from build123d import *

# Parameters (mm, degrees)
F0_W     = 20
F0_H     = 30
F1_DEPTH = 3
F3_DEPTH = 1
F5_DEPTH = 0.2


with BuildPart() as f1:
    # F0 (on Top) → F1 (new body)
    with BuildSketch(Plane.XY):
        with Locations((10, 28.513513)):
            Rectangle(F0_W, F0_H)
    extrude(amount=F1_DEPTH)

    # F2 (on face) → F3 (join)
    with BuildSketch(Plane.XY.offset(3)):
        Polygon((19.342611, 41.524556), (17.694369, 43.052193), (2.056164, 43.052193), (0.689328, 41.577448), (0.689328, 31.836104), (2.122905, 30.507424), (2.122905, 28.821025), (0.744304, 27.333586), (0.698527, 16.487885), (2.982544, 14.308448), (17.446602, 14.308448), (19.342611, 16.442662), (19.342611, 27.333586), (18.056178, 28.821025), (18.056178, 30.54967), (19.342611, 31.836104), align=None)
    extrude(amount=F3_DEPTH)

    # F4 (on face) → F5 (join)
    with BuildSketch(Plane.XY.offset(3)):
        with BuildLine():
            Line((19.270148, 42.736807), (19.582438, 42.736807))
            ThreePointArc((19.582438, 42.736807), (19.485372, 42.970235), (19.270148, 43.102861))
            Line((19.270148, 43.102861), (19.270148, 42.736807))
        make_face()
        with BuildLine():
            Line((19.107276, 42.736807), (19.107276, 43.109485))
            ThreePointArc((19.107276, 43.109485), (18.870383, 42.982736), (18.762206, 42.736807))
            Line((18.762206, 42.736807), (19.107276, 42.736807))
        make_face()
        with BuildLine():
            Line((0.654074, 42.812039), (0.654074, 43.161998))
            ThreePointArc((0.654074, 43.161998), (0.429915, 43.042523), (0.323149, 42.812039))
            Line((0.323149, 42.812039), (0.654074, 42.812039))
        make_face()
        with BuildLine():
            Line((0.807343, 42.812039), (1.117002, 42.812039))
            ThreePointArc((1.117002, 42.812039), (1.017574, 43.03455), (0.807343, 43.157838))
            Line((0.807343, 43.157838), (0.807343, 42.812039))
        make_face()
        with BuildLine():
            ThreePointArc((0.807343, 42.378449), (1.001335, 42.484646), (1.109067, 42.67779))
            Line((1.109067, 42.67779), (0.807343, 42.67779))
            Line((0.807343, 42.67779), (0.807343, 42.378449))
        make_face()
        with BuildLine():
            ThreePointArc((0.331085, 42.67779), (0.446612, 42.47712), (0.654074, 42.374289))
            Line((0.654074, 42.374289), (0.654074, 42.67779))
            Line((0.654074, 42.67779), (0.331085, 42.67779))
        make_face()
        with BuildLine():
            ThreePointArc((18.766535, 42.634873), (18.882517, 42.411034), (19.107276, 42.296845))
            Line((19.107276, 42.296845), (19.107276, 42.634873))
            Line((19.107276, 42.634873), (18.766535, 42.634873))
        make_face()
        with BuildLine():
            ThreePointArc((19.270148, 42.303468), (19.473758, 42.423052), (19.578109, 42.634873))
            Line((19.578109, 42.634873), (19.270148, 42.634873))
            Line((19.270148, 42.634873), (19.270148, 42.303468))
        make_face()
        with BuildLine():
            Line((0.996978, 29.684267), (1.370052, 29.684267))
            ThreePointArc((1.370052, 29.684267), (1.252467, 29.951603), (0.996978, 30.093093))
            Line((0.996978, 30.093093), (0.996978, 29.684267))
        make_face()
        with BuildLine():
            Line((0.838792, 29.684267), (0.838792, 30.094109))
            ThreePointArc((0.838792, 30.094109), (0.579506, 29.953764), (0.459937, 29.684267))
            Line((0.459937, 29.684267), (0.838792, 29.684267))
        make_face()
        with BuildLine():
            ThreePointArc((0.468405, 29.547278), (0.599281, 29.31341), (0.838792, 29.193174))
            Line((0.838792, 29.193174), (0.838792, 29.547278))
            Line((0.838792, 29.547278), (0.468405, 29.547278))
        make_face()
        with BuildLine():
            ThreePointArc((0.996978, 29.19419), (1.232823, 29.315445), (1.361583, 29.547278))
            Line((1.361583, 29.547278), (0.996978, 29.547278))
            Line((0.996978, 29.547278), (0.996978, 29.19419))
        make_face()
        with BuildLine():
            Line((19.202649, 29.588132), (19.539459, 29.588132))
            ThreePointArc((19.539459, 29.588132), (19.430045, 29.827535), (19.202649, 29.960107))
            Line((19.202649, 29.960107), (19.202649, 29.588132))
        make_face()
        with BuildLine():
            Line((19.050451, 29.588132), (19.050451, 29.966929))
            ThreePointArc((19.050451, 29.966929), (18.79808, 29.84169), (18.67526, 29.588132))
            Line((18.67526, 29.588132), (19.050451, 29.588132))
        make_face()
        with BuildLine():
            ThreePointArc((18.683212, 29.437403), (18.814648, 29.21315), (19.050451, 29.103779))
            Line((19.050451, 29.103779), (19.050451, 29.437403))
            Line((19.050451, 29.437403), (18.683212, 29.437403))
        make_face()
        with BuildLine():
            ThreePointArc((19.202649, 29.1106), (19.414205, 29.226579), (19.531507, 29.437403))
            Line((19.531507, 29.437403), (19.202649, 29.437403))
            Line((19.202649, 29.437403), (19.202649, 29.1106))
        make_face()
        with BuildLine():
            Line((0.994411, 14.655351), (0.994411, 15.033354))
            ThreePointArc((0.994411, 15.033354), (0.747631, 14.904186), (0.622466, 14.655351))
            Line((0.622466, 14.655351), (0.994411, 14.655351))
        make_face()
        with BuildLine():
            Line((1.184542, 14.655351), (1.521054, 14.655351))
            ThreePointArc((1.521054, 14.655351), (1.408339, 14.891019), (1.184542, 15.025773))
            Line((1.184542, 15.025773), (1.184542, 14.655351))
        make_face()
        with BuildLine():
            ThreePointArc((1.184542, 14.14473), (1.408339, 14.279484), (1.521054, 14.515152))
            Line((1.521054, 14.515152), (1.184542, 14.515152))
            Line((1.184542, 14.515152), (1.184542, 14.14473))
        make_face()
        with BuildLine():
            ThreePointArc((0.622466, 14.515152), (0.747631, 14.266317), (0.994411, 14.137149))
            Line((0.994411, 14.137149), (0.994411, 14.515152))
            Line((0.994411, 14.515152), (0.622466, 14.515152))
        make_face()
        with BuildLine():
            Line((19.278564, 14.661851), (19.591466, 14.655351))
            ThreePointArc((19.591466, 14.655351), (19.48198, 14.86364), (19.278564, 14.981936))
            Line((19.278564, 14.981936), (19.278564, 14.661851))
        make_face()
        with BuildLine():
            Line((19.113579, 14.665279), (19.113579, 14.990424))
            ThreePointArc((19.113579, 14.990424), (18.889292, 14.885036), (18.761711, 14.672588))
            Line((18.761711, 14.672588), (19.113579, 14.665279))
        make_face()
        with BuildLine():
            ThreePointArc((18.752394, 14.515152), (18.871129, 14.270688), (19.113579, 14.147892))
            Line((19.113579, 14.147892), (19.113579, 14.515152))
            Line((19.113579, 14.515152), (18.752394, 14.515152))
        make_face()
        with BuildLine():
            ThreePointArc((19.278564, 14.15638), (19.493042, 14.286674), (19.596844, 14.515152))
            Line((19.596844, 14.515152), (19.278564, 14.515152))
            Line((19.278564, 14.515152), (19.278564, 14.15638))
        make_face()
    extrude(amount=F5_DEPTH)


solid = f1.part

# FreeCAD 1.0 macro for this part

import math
import FreeCAD as App
import Part
import Sketcher
Q = App.Units.Quantity


def add_polygon(sketch, points):
    """Adds a closed chain of lines whose ends are joined by coincident constraints."""
    first, n = sketch.GeometryCount, len(points)
    for a, b in zip(points, points[1:] + points[:1]):
        sketch.addGeometry(Part.LineSegment(App.Vector(*a, 0), App.Vector(*b, 0)), False)
    for i in range(n):
        sketch.addConstraint(Sketcher.Constraint("Coincident", first + i, 2, first + (i + 1) % n, 1))

doc = App.newDocument("Part")
params = doc.addObject("Spreadsheet::Sheet", "Params")
for row, (alias, value) in enumerate([
    ("sketch1_width", "20 mm"),
    ("sketch1_height", "30 mm"),
    ("pad1_length", "3 mm"),
    ("pad2_length", "1 mm"),
    ("pad3_length", "0.2 mm"),
], start=1):
    params.set(f"A{row}", alias)
    params.set(f"B{row}", "=" + value)
    params.setAlias(f"B{row}", alias)

body = doc.addObject("PartDesign::Body", "Body")

# Sketch on XY plane
sketch1 = doc.addObject("Sketcher::SketchObject", "Sketch")
body.addObject(sketch1)
sketch1.AttachmentSupport = (doc.XY_Plane, [""])
sketch1.MapMode = "FlatFace"
add_polygon(sketch1, [(0, 44), (0, 14), (20, 14), (20, 44)])  # lines 0-3
sketch1.addConstraint([
    Sketcher.Constraint("Vertical", 0),
    Sketcher.Constraint("Horizontal", 1),
    Sketcher.Constraint("Vertical", 2),
    Sketcher.Constraint("Horizontal", 3),
    Sketcher.Constraint("PointOnObject", 0, 2, -2),
    Sketcher.Constraint("DistanceX", 1, 1, 1, 2, Q("20 mm")),
    Sketcher.Constraint("DistanceY", 0, 2, 0, 1, Q("30 mm")),
    Sketcher.Constraint("DistanceY", -1, 1, 0, 2, Q("13.513513 mm")),
])
sketch1.setExpression("Constraints[9]", "Params.sketch1_width")
sketch1.setExpression("Constraints[10]", "Params.sketch1_height")
pad1 = doc.addObject("PartDesign::Pad", "Pad")
body.addObject(pad1)
pad1.Profile = sketch1
pad1.setExpression("Length", "Params.pad1_length")

# Sketch on XY plane
sketch2 = doc.addObject("Sketcher::SketchObject", "Sketch001")
body.addObject(sketch2)
sketch2.AttachmentSupport = (doc.XY_Plane, [""])
sketch2.MapMode = "FlatFace"
sketch2.AttachmentOffset = App.Placement(App.Vector(0, 0, 3), App.Rotation())
add_polygon(sketch2, [(19.3, 41.5), (17.7, 43.1), (2.1, 43.1), (0.7, 41.6), (0.7, 31.8), (2.1, 30.5), (2.1, 28.8), (0.7, 27.3), (0.7, 16.5), (3, 14.3), (17.4, 14.3), (19.3, 16.4), (19.3, 27.3), (18.1, 28.8), (18.1, 30.5), (19.3, 31.8)])  # lines 0-15
sketch2.addConstraint([
    Sketcher.Constraint("Horizontal", 1),
    Sketcher.Constraint("Vertical", 3),
    Sketcher.Constraint("Vertical", 5),
    Sketcher.Constraint("Horizontal", 9),
    Sketcher.Constraint("Vertical", 11),
    Sketcher.Constraint("Vertical", 13),
    Sketcher.Constraint("Vertical", 15),
    Sketcher.Constraint("Perpendicular", 0, 2),
    Sketcher.Constraint("Perpendicular", 2, 4),
    Sketcher.Constraint("Perpendicular", 4, 6),
    Sketcher.Constraint("Horizontal", 6, 2, 11, 2),
    Sketcher.Constraint("Horizontal", 5, 2, 12, 2),
    Sketcher.Constraint("Horizontal", 3, 2, 14, 2),
    Sketcher.Constraint("Vertical", 11, 2, 14, 2),
    Sketcher.Constraint("DistanceY", 5, 2, 5, 1, Q("1.686399 mm")),
    Sketcher.Constraint("DistanceY", 15, 1, 15, 2, Q("9.688452 mm")),
    Sketcher.Constraint("DistanceX", -1, 1, 9, 2, Q("17.446602 mm")),
    Sketcher.Constraint("DistanceX", 6, 2, 5, 2, Q("1.378601 mm")),
    Sketcher.Constraint("DistanceY", 7, 2, 6, 2, Q("10.845701 mm")),
    Sketcher.Constraint("DistanceX", 3, 2, 7, 2, Q("0.009199 mm")),
    Sketcher.Constraint("Distance", 2, Q("2.010749 mm")),
    Sketcher.Constraint("Distance", 4, Q("1.954619 mm")),
    Sketcher.Constraint("Distance", 10, Q("2.854771 mm")),
    Sketcher.Constraint("Distance", 14, Q("1.819292 mm")),
    Sketcher.Constraint("DistanceX", 1, 2, 1, 1, Q("15.638205 mm")),
    Sketcher.Constraint("DistanceX", 9, 1, 9, 2, Q("14.464058 mm")),
    Sketcher.Constraint("DistanceY", 3, 2, 3, 1, Q("9.741344 mm")),
    Sketcher.Constraint("DistanceY", 11, 1, 11, 2, Q("10.890924 mm")),
    Sketcher.Constraint("DistanceY", 13, 1, 13, 2, Q("1.728645 mm")),
    Sketcher.Constraint("DistanceX", -1, 1, 0, 2, Q("17.694369 mm")),
    Sketcher.Constraint("DistanceX", -1, 1, 2, 2, Q("0.689328 mm")),
    Sketcher.Constraint("DistanceY", -1, 1, 10, 2, Q("16.442662 mm")),
])
pad2 = doc.addObject("PartDesign::Pad", "Pad001")
body.addObject(pad2)
pad2.Profile = sketch2
pad2.setExpression("Length", "Params.pad2_length")

# Sketch on XY plane
sketch3 = doc.addObject("Sketcher::SketchObject", "Sketch002")
body.addObject(sketch3)
sketch3.AttachmentSupport = (doc.XY_Plane, [""])
sketch3.MapMode = "FlatFace"
sketch3.AttachmentOffset = App.Placement(App.Vector(0, 0, 3), App.Rotation())
sketch3.addGeometry([
    Part.LineSegment(App.Vector(19.270148, 42.736807, 0), App.Vector(19.582438, 42.736807, 0)),  # 0
    Part.ArcOfCircle(Part.Circle(App.Vector(19.172321, 42.703164, 0), App.Vector(0, 0, 1), 0.411494), math.radians(4.689605), math.radians(76.247075)),  # 1
    Part.LineSegment(App.Vector(19.270148, 43.102861, 0), App.Vector(19.270148, 42.736807, 0)),  # 2
    Part.LineSegment(App.Vector(19.107276, 42.736807, 0), App.Vector(19.107276, 43.109485, 0)),  # 3
    Part.ArcOfCircle(Part.Circle(App.Vector(19.172321, 42.703166, 0), App.Vector(0, 0, 1), 0.411493), math.radians(99.094973), math.radians(175.310591)),  # 4
    Part.LineSegment(App.Vector(18.762206, 42.736807, 0), App.Vector(19.107276, 42.736807, 0)),  # 5
    Part.LineSegment(App.Vector(0.654074, 42.812039, 0), App.Vector(0.654074, 43.161998, 0)),  # 6
    Part.ArcOfCircle(Part.Circle(App.Vector(0.720077, 42.768142, 0), App.Vector(0, 0, 1), 0.399348), math.radians(99.513307), math.radians(173.689248)),  # 7
    Part.LineSegment(App.Vector(0.323149, 42.812039, 0), App.Vector(0.654074, 42.812039, 0)),  # 8
    Part.LineSegment(App.Vector(0.807343, 42.812039, 0), App.Vector(1.117002, 42.812039, 0)),  # 9
    Part.ArcOfCircle(Part.Circle(App.Vector(0.720077, 42.768145, 0), App.Vector(0, 0, 1), 0.399344), math.radians(6.310425), math.radians(77.377729)),  # 10
    Part.LineSegment(App.Vector(0.807343, 43.157838, 0), App.Vector(0.807343, 42.812039, 0)),  # 11
    Part.ArcOfCircle(Part.Circle(App.Vector(0.720076, 42.768144, 0), App.Vector(0, 0, 1), 0.399347), math.radians(-77.37761), math.radians(-13.076701)),  # 12
    Part.LineSegment(App.Vector(1.109067, 42.67779, 0), App.Vector(0.807343, 42.67779, 0)),  # 13
    Part.LineSegment(App.Vector(0.807343, 42.67779, 0), App.Vector(0.807343, 42.378449, 0)),  # 14
    Part.ArcOfCircle(Part.Circle(App.Vector(0.720078, 42.768146, 0), App.Vector(0, 0, 1), 0.399349), math.radians(-166.923126), math.radians(-99.513465)),  # 15
    Part.LineSegment(App.Vector(0.654074, 42.374289, 0), App.Vector(0.654074, 42.67779, 0)),  # 16
    Part.LineSegment(App.Vector(0.654074, 42.67779, 0), App.Vector(0.331085, 42.67779, 0)),  # 17
    Part.ArcOfCircle(Part.Circle(App.Vector(19.17232, 42.703162, 0), App.Vector(0, 0, 1), 0.411491), math.radians(-170.447212), math.radians(-99.094775)),  # 18
    Part.LineSegment(App.Vector(19.107276, 42.296845, 0), App.Vector(19.107276, 42.634873, 0)),  # 19
    Part.LineSegment(App.Vector(19.107276, 42.634873, 0), App.Vector(18.766535, 42.634873, 0)),  # 20
    Part.ArcOfCircle(Part.Circle(App.Vector(19.17232, 42.703166, 0), App.Vector(0, 0, 1), 0.411496), math.radians(-76.246929), math.radians(-9.553158)),  # 21
    Part.LineSegment(App.Vector(19.578109, 42.634873, 0), App.Vector(19.270148, 42.634873, 0)),  # 22
    Part.LineSegment(App.Vector(19.270148, 42.634873, 0), App.Vector(19.270148, 42.303468, 0)),  # 23
    Part.LineSegment(App.Vector(0.996978, 29.684267, 0), App.Vector(1.370052, 29.684267, 0)),  # 24
    Part.ArcOfCircle(Part.Circle(App.Vector(0.914995, 29.643642, 0), App.Vector(0, 0, 1), 0.456867), math.radians(5.10152), math.radians(79.662483)),  # 25
    Part.LineSegment(App.Vector(0.996978, 30.093093, 0), App.Vector(0.996978, 29.684267, 0)),  # 26
    Part.LineSegment(App.Vector(0.838792, 29.684267, 0), App.Vector(0.838792, 30.094109, 0)),  # 27
    Part.ArcOfCircle(Part.Circle(App.Vector(0.914992, 29.643644, 0), App.Vector(0, 0, 1), 0.456864), math.radians(99.601149), math.radians(174.898708)),  # 28
    Part.LineSegment(App.Vector(0.459937, 29.684267, 0), App.Vector(0.838792, 29.684267, 0)),  # 29
    Part.ArcOfCircle(Part.Circle(App.Vector(0.914995, 29.643642, 0), App.Vector(0, 0, 1), 0.456868), math.radians(-167.823532), math.radians(-99.601446)),  # 30
    Part.LineSegment(App.Vector(0.838792, 29.193174, 0), App.Vector(0.838792, 29.547278, 0)),  # 31
    Part.LineSegment(App.Vector(0.838792, 29.547278, 0), App.Vector(0.468405, 29.547278, 0)),  # 32
    Part.ArcOfCircle(Part.Circle(App.Vector(0.914995, 29.64364, 0), App.Vector(0, 0, 1), 0.456865), math.radians(-79.662519), math.radians(-12.176202)),  # 33
    Part.LineSegment(App.Vector(1.361583, 29.547278, 0), App.Vector(0.996978, 29.547278, 0)),  # 34
    Part.LineSegment(App.Vector(0.996978, 29.547278, 0), App.Vector(0.996978, 29.19419, 0)),  # 35
    Part.LineSegment(App.Vector(19.202649, 29.588132, 0), App.Vector(19.539459, 29.588132, 0)),  # 36
    Part.ArcOfCircle(Part.Circle(App.Vector(19.107361, 29.535355, 0), App.Vector(0, 0, 1), 0.435309), math.radians(6.963672), math.radians(77.355746)),  # 37
    Part.LineSegment(App.Vector(19.202649, 29.960107, 0), App.Vector(19.202649, 29.588132, 0)),  # 38
    Part.LineSegment(App.Vector(19.050451, 29.588132, 0), App.Vector(19.050451, 29.966929, 0)),  # 39
    Part.ArcOfCircle(Part.Circle(App.Vector(19.107359, 29.535354, 0), App.Vector(0, 0, 1), 0.435311), math.radians(97.511813), math.radians(173.036225)),  # 40
    Part.LineSegment(App.Vector(18.67526, 29.588132, 0), App.Vector(19.050451, 29.588132, 0)),  # 41
    Part.ArcOfCircle(Part.Circle(App.Vector(19.10736, 29.535354, 0), App.Vector(0, 0, 1), 0.435311), math.radians(-166.996265), math.radians(-97.511869)),  # 42
    Part.LineSegment(App.Vector(19.050451, 29.103779, 0), App.Vector(19.050451, 29.437403, 0)),  # 43
    Part.LineSegment(App.Vector(19.050451, 29.437403, 0), App.Vector(18.683212, 29.437403, 0)),  # 44
    Part.ArcOfCircle(Part.Circle(App.Vector(19.107361, 29.535352, 0), App.Vector(0, 0, 1), 0.435309), math.radians(-77.355727), math.radians(-13.003429)),  # 45
    Part.LineSegment(App.Vector(19.531507, 29.437403, 0), App.Vector(19.202649, 29.437403, 0)),  # 46
    Part.LineSegment(App.Vector(19.202649, 29.437403, 0), App.Vector(19.202649, 29.1106, 0)),  # 47
    Part.LineSegment(App.Vector(0.994411, 14.655351, 0), App.Vector(0.994411, 15.033354, 0)),  # 48
    Part.ArcOfCircle(Part.Circle(App.Vector(1.07176, 14.585251, 0), App.Vector(0, 0, 1), 0.45473), math.radians(99.793568), math.radians(171.13207)),  # 49
    Part.LineSegment(App.Vector(0.622466, 14.655351, 0), App.Vector(0.994411, 14.655351, 0)),  # 50
    Part.LineSegment(App.Vector(1.184542, 14.655351, 0), App.Vector(1.521054, 14.655351, 0)),  # 51
    Part.ArcOfCircle(Part.Circle(App.Vector(1.071761, 14.585252, 0), App.Vector(0, 0, 1), 0.454729), math.radians(8.867798), math.radians(75.639718)),  # 52
    Part.LineSegment(App.Vector(1.184542, 15.025773, 0), App.Vector(1.184542, 14.655351, 0)),  # 53
    Part.ArcOfCircle(Part.Circle(App.Vector(1.071761, 14.585251, 0), App.Vector(0, 0, 1), 0.454729), math.radians(-75.639718), math.radians(-8.867798)),  # 54
    Part.LineSegment(App.Vector(1.521054, 14.515152, 0), App.Vector(1.184542, 14.515152, 0)),  # 55
    Part.LineSegment(App.Vector(1.184542, 14.515152, 0), App.Vector(1.184542, 14.14473, 0)),  # 56
    Part.ArcOfCircle(Part.Circle(App.Vector(1.07176, 14.585252, 0), App.Vector(0, 0, 1), 0.45473), math.radians(-171.13207), math.radians(-99.793568)),  # 57
    Part.LineSegment(App.Vector(0.994411, 14.137149, 0), App.Vector(0.994411, 14.515152, 0)),  # 58
    Part.LineSegment(App.Vector(0.994411, 14.515152, 0), App.Vector(0.622466, 14.515152, 0)),  # 59
    Part.LineSegment(App.Vector(19.278564, 14.661851, 0), App.Vector(19.591466, 14.655351, 0)),  # 60
    Part.ArcOfCircle(Part.Circle(App.Vector(19.174619, 14.569158, 0), App.Vector(0, 0, 1), 0.425665), math.radians(11.68268), math.radians(75.865797)),  # 61
    Part.LineSegment(App.Vector(19.278564, 14.981936, 0), App.Vector(19.278564, 14.661851, 0)),  # 62
    Part.LineSegment(App.Vector(19.113579, 14.665279, 0), App.Vector(19.113579, 14.990424, 0)),  # 63
    Part.ArcOfCircle(Part.Circle(App.Vector(19.174621, 14.569156, 0), App.Vector(0, 0, 1), 0.425668), math.radians(98.244831), math.radians(165.937034)),  # 64
    Part.LineSegment(App.Vector(18.761711, 14.672588, 0), App.Vector(19.113579, 14.665279, 0)),  # 65
    Part.ArcOfCircle(Part.Circle(App.Vector(19.17462, 14.569159, 0), App.Vector(0, 0, 1), 0.425666), math.radians(-172.710905), math.radians(-98.24473)),  # 66
    Part.LineSegment(App.Vector(19.113579, 14.147892, 0), App.Vector(19.113579, 14.515152, 0)),  # 67
    Part.LineSegment(App.Vector(19.113579, 14.515152, 0), App.Vector(18.752394, 14.515152, 0)),  # 68
    Part.ArcOfCircle(Part.Circle(App.Vector(19.174619, 14.569158, 0), App.Vector(0, 0, 1), 0.425665), math.radians(-75.865793), math.radians(-7.289059)),  # 69
    Part.LineSegment(App.Vector(19.596844, 14.515152, 0), App.Vector(19.278564, 14.515152, 0)),  # 70
    Part.LineSegment(App.Vector(19.278564, 14.515152, 0), App.Vector(19.278564, 14.15638, 0)),  # 71
], False)
sketch3.addConstraint([
    Sketcher.Constraint("Coincident", 0, 2, 1, 1),
    Sketcher.Constraint("Coincident", 1, 2, 2, 1),
    Sketcher.Constraint("Coincident", 2, 2, 0, 1),
    Sketcher.Constraint("Coincident", 3, 2, 4, 1),
    Sketcher.Constraint("Coincident", 4, 2, 5, 1),
    Sketcher.Constraint("Coincident", 5, 2, 3, 1),
    Sketcher.Constraint("Coincident", 6, 2, 7, 1),
    Sketcher.Constraint("Coincident", 7, 2, 8, 1),
    Sketcher.Constraint("Coincident", 8, 2, 6, 1),
    Sketcher.Constraint("Coincident", 9, 2, 10, 1),
    Sketcher.Constraint("Coincident", 10, 2, 11, 1),
    Sketcher.Constraint("Coincident", 11, 2, 9, 1),
    Sketcher.Constraint("Coincident", 12, 2, 13, 1),
    Sketcher.Constraint("Coincident", 13, 2, 14, 1),
    Sketcher.Constraint("Coincident", 14, 2, 12, 1),
    Sketcher.Constraint("Coincident", 15, 2, 16, 1),
    Sketcher.Constraint("Coincident", 16, 2, 17, 1),
    Sketcher.Constraint("Coincident", 17, 2, 15, 1),
    Sketcher.Constraint("Coincident", 18, 2, 19, 1),
    Sketcher.Constraint("Coincident", 19, 2, 20, 1),
    Sketcher.Constraint("Coincident", 20, 2, 18, 1),
    Sketcher.Constraint("Coincident", 21, 2, 22, 1),
    Sketcher.Constraint("Coincident", 22, 2, 23, 1),
    Sketcher.Constraint("Coincident", 23, 2, 21, 1),
    Sketcher.Constraint("Coincident", 24, 2, 25, 1),
    Sketcher.Constraint("Coincident", 25, 2, 26, 1),
    Sketcher.Constraint("Coincident", 26, 2, 24, 1),
    Sketcher.Constraint("Coincident", 27, 2, 28, 1),
    Sketcher.Constraint("Coincident", 28, 2, 29, 1),
    Sketcher.Constraint("Coincident", 29, 2, 27, 1),
    Sketcher.Constraint("Coincident", 30, 2, 31, 1),
    Sketcher.Constraint("Coincident", 31, 2, 32, 1),
    Sketcher.Constraint("Coincident", 32, 2, 30, 1),
    Sketcher.Constraint("Coincident", 33, 2, 34, 1),
    Sketcher.Constraint("Coincident", 34, 2, 35, 1),
    Sketcher.Constraint("Coincident", 35, 2, 33, 1),
    Sketcher.Constraint("Coincident", 36, 2, 37, 1),
    Sketcher.Constraint("Coincident", 37, 2, 38, 1),
    Sketcher.Constraint("Coincident", 38, 2, 36, 1),
    Sketcher.Constraint("Coincident", 39, 2, 40, 1),
    Sketcher.Constraint("Coincident", 40, 2, 41, 1),
    Sketcher.Constraint("Coincident", 41, 2, 39, 1),
    Sketcher.Constraint("Coincident", 42, 2, 43, 1),
    Sketcher.Constraint("Coincident", 43, 2, 44, 1),
    Sketcher.Constraint("Coincident", 44, 2, 42, 1),
    Sketcher.Constraint("Coincident", 45, 2, 46, 1),
    Sketcher.Constraint("Coincident", 46, 2, 47, 1),
    Sketcher.Constraint("Coincident", 47, 2, 45, 1),
    Sketcher.Constraint("Coincident", 48, 2, 49, 1),
    Sketcher.Constraint("Coincident", 49, 2, 50, 1),
    Sketcher.Constraint("Coincident", 50, 2, 48, 1),
    Sketcher.Constraint("Coincident", 51, 2, 52, 1),
    Sketcher.Constraint("Coincident", 52, 2, 53, 1),
    Sketcher.Constraint("Coincident", 53, 2, 51, 1),
    Sketcher.Constraint("Coincident", 54, 2, 55, 1),
    Sketcher.Constraint("Coincident", 55, 2, 56, 1),
    Sketcher.Constraint("Coincident", 56, 2, 54, 1),
    Sketcher.Constraint("Coincident", 57, 2, 58, 1),
    Sketcher.Constraint("Coincident", 58, 2, 59, 1),
    Sketcher.Constraint("Coincident", 59, 2, 57, 1),
    Sketcher.Constraint("Coincident", 60, 2, 61, 1),
    Sketcher.Constraint("Coincident", 61, 2, 62, 1),
    Sketcher.Constraint("Coincident", 62, 2, 60, 1),
    Sketcher.Constraint("Coincident", 63, 2, 64, 1),
    Sketcher.Constraint("Coincident", 64, 2, 65, 1),
    Sketcher.Constraint("Coincident", 65, 2, 63, 1),
    Sketcher.Constraint("Coincident", 66, 2, 67, 1),
    Sketcher.Constraint("Coincident", 67, 2, 68, 1),
    Sketcher.Constraint("Coincident", 68, 2, 66, 1),
    Sketcher.Constraint("Coincident", 69, 2, 70, 1),
    Sketcher.Constraint("Coincident", 70, 2, 71, 1),
    Sketcher.Constraint("Coincident", 71, 2, 69, 1),
    Sketcher.Constraint("Horizontal", 0),
    Sketcher.Constraint("Vertical", 2),
    Sketcher.Constraint("Vertical", 3),
    Sketcher.Constraint("Horizontal", 5),
    Sketcher.Constraint("Vertical", 6),
    Sketcher.Constraint("Horizontal", 8),
    Sketcher.Constraint("Horizontal", 9),
    Sketcher.Constraint("Vertical", 11),
    Sketcher.Constraint("Horizontal", 13),
    Sketcher.Constraint("Vertical", 14),
    Sketcher.Constraint("Vertical", 16),
    Sketcher.Constraint("Horizontal", 17),
    Sketcher.Constraint("Vertical", 19),
    Sketcher.Constraint("Horizontal", 20),
    Sketcher.Constraint("Horizontal", 22),
    Sketcher.Constraint("Vertical", 23),
    Sketcher.Constraint("Horizontal", 24),
    Sketcher.Constraint("Vertical", 26),
    Sketcher.Constraint("Vertical", 27),
    Sketcher.Constraint("Horizontal", 29),
    Sketcher.Constraint("Vertical", 31),
    Sketcher.Constraint("Horizontal", 32),
    Sketcher.Constraint("Horizontal", 34),
    Sketcher.Constraint("Vertical", 35),
    Sketcher.Constraint("Horizontal", 36),
    Sketcher.Constraint("Vertical", 38),
    Sketcher.Constraint("Vertical", 39),
    Sketcher.Constraint("Horizontal", 41),
    Sketcher.Constraint("Vertical", 43),
    Sketcher.Constraint("Horizontal", 44),
    Sketcher.Constraint("Horizontal", 46),
    Sketcher.Constraint("Vertical", 47),
    Sketcher.Constraint("Vertical", 48),
    Sketcher.Constraint("Horizontal", 50),
    Sketcher.Constraint("Horizontal", 51),
    Sketcher.Constraint("Vertical", 53),
    Sketcher.Constraint("Horizontal", 55),
    Sketcher.Constraint("Vertical", 56),
    Sketcher.Constraint("Vertical", 58),
    Sketcher.Constraint("Horizontal", 59),
    Sketcher.Constraint("Vertical", 62),
    Sketcher.Constraint("Vertical", 63),
    Sketcher.Constraint("Vertical", 67),
    Sketcher.Constraint("Horizontal", 68),
    Sketcher.Constraint("Horizontal", 70),
    Sketcher.Constraint("Vertical", 71),
    Sketcher.Constraint("Coincident", 4, 3, 1, 3),
    Sketcher.Constraint("Coincident", 10, 3, 7, 3),
    Sketcher.Constraint("Coincident", 12, 3, 7, 3),
    Sketcher.Constraint("Coincident", 15, 3, 7, 3),
    Sketcher.Constraint("Coincident", 18, 3, 1, 3),
    Sketcher.Constraint("Coincident", 21, 3, 1, 3),
    Sketcher.Constraint("Coincident", 28, 3, 25, 3),
    Sketcher.Constraint("Coincident", 30, 3, 25, 3),
    Sketcher.Constraint("Coincident", 33, 3, 25, 3),
    Sketcher.Constraint("Coincident", 40, 3, 37, 3),
    Sketcher.Constraint("Coincident", 42, 3, 37, 3),
    Sketcher.Constraint("Coincident", 45, 3, 37, 3),
    Sketcher.Constraint("Coincident", 52, 3, 49, 3),
    Sketcher.Constraint("Coincident", 54, 3, 49, 3),
    Sketcher.Constraint("Coincident", 57, 3, 49, 3),
    Sketcher.Constraint("Coincident", 64, 3, 61, 3),
    Sketcher.Constraint("Coincident", 66, 3, 61, 3),
    Sketcher.Constraint("Coincident", 69, 3, 61, 3),
    Sketcher.Constraint("Radius", 15, Q("0.399349 mm")),
    Sketcher.Constraint("Radius", 18, Q("0.411491 mm")),
    Sketcher.Constraint("Radius", 30, Q("0.456868 mm")),
    Sketcher.Constraint("Radius", 37, Q("0.435309 mm")),
    Sketcher.Constraint("Radius", 40, Q("0.435311 mm")),
    Sketcher.Constraint("Radius", 42, Q("0.435311 mm")),
    Sketcher.Constraint("Radius", 45, Q("0.435309 mm")),
    Sketcher.Constraint("Radius", 49, Q("0.45473 mm")),
    Sketcher.Constraint("Radius", 52, Q("0.454729 mm")),
    Sketcher.Constraint("Radius", 54, Q("0.454729 mm")),
    Sketcher.Constraint("Radius", 57, Q("0.45473 mm")),
    Sketcher.Constraint("DistanceY", 11, 2, 11, 1, Q("0.345799 mm")),
    Sketcher.Constraint("DistanceY", 16, 1, 16, 2, Q("0.303501 mm")),
    Sketcher.Constraint("Radius", 1, Q("0.411494 mm")),
    Sketcher.Constraint("Radius", 4, Q("0.411493 mm")),
    Sketcher.Constraint("Radius", 7, Q("0.399348 mm")),
    Sketcher.Constraint("Radius", 10, Q("0.399344 mm")),
    Sketcher.Constraint("Radius", 12, Q("0.399347 mm")),
    Sketcher.Constraint("Radius", 21, Q("0.411496 mm")),
    Sketcher.Constraint("Radius", 25, Q("0.456867 mm")),
    Sketcher.Constraint("Radius", 28, Q("0.456864 mm")),
    Sketcher.Constraint("Radius", 33, Q("0.456865 mm")),
    Sketcher.Constraint("Radius", 61, Q("0.425665 mm")),
    Sketcher.Constraint("Radius", 64, Q("0.425668 mm")),
    Sketcher.Constraint("Radius", 66, Q("0.425666 mm")),
    Sketcher.Constraint("Radius", 69, Q("0.425665 mm")),
    Sketcher.Constraint("DistanceX", 0, 1, 0, 2, Q("0.31229 mm")),
    Sketcher.Constraint("DistanceX", 5, 1, 5, 2, Q("0.34507 mm")),
    Sketcher.Constraint("DistanceX", 9, 1, 9, 2, Q("0.309659 mm")),
    Sketcher.Constraint("DistanceX", 17, 2, 17, 1, Q("0.322989 mm")),
    Sketcher.Constraint("DistanceX", 20, 2, 20, 1, Q("0.340741 mm")),
    Sketcher.Constraint("DistanceX", 22, 2, 22, 1, Q("0.307961 mm")),
    Sketcher.Constraint("DistanceX", 36, 1, 36, 2, Q("0.33681 mm")),
    Sketcher.Constraint("DistanceX", 41, 1, 41, 2, Q("0.375191 mm")),
    Sketcher.Constraint("DistanceX", 44, 2, 44, 1, Q("0.367239 mm")),
    Sketcher.Constraint("DistanceX", 46, 2, 46, 1, Q("0.328858 mm")),
    Sketcher.Constraint("DistanceX", 51, 1, 51, 2, Q("0.336512 mm")),
    Sketcher.Constraint("DistanceX", 55, 2, 55, 1, Q("0.336512 mm")),
    Sketcher.Constraint("DistanceX", 70, 2, 70, 1, Q("0.31828 mm")),
    Sketcher.Constraint("DistanceY", 3, 1, 3, 2, Q("0.372678 mm")),
    Sketcher.Constraint("DistanceY", 6, 1, 6, 2, Q("0.349959 mm")),
    Sketcher.Constraint("DistanceY", 14, 2, 14, 1, Q("0.299341 mm")),
    Sketcher.Constraint("DistanceY", 19, 1, 19, 2, Q("0.338028 mm")),
    Sketcher.Constraint("DistanceY", 53, 2, 53, 1, Q("0.370422 mm")),
    Sketcher.Constraint("DistanceY", 67, 1, 67, 2, Q("0.36726 mm")),
    Sketcher.Constraint("DistanceY", -1, 1, 47, 2, Q("29.1106 mm")),
    Sketcher.Constraint("Distance", 60, Q("0.31297 mm")),
    Sketcher.Constraint("DistanceX", 8, 1, 8, 2, Q("0.330925 mm")),
    Sketcher.Constraint("DistanceX", 13, 2, 13, 1, Q("0.301724 mm")),
    Sketcher.Constraint("DistanceX", 24, 1, 24, 2, Q("0.373074 mm")),
    Sketcher.Constraint("DistanceX", 29, 1, 29, 2, Q("0.378855 mm")),
    Sketcher.Constraint("DistanceX", 32, 2, 32, 1, Q("0.370387 mm")),
    Sketcher.Constraint("DistanceX", 34, 2, 34, 1, Q("0.364605 mm")),
    Sketcher.Constraint("DistanceX", 50, 1, 50, 2, Q("0.371945 mm")),
    Sketcher.Constraint("DistanceX", 59, 2, 59, 1, Q("0.371945 mm")),
    Sketcher.Constraint("DistanceX", 68, 2, 68, 1, Q("0.361185 mm")),
    Sketcher.Constraint("DistanceY", 2, 2, 2, 1, Q("0.366054 mm")),
    Sketcher.Constraint("DistanceY", 23, 2, 23, 1, Q("0.331405 mm")),
    Sketcher.Constraint("DistanceY", 26, 2, 26, 1, Q("0.408826 mm")),
    Sketcher.Constraint("DistanceY", 27, 1, 27, 2, Q("0.409842 mm")),
    Sketcher.Constraint("DistanceY", 31, 1, 31, 2, Q("0.354104 mm")),
    Sketcher.Constraint("DistanceY", 35, 2, 35, 1, Q("0.353088 mm")),
    Sketcher.Constraint("DistanceY", 38, 2, 38, 1, Q("0.371975 mm")),
    Sketcher.Constraint("DistanceY", 39, 1, 39, 2, Q("0.378797 mm")),
    Sketcher.Constraint("DistanceY", 43, 1, 43, 2, Q("0.333624 mm")),
    Sketcher.Constraint("DistanceY", 47, 2, 47, 1, Q("0.326803 mm")),
    Sketcher.Constraint("DistanceY", 48, 1, 48, 2, Q("0.378003 mm")),
    Sketcher.Constraint("DistanceY", 56, 2, 56, 1, Q("0.370422 mm")),
    Sketcher.Constraint("DistanceY", 58, 1, 58, 2, Q("0.378003 mm")),
    Sketcher.Constraint("DistanceY", 62, 2, 62, 1, Q("0.320085 mm")),
    Sketcher.Constraint("DistanceY", 63, 1, 63, 2, Q("0.325145 mm")),
    Sketcher.Constraint("DistanceY", 71, 2, 71, 1, Q("0.358772 mm")),
    Sketcher.Constraint("DistanceX", -1, 1, 1, 3, Q("19.172321 mm")),
    Sketcher.Constraint("DistanceX", -1, 1, 15, 3, Q("0.720078 mm")),
    Sketcher.Constraint("DistanceX", -1, 1, 28, 3, Q("0.914992 mm")),
    Sketcher.Constraint("DistanceY", -1, 1, 33, 3, Q("29.64364 mm")),
    Sketcher.Constraint("DistanceX", -1, 1, 37, 3, Q("19.107361 mm")),
    Sketcher.Constraint("DistanceX", -1, 1, 49, 3, Q("1.07176 mm")),
    Sketcher.Constraint("DistanceY", -1, 1, 49, 3, Q("14.585251 mm")),
    Sketcher.Constraint("DistanceX", -1, 1, 61, 3, Q("19.174619 mm")),
    Sketcher.Constraint("DistanceY", -1, 1, 66, 3, Q("14.569159 mm")),
    Sketcher.Constraint("DistanceY", -1, 1, 1, 2, Q("43.102861 mm")),
    Sketcher.Constraint("DistanceY", -1, 1, 7, 2, Q("42.812039 mm")),
    Sketcher.Constraint("DistanceY", -1, 1, 60, 2, Q("14.655351 mm")),
    Sketcher.Constraint("DistanceX", -1, 1, 63, 2, Q("19.113579 mm")),
    Sketcher.Constraint("DistanceX", -1, 1, 64, 2, Q("18.761711 mm")),
])
pad3 = doc.addObject("PartDesign::Pad", "Pad002")
body.addObject(pad3)
pad3.Profile = sketch3
pad3.setExpression("Length", "Params.pad3_length")

doc.recompute()
